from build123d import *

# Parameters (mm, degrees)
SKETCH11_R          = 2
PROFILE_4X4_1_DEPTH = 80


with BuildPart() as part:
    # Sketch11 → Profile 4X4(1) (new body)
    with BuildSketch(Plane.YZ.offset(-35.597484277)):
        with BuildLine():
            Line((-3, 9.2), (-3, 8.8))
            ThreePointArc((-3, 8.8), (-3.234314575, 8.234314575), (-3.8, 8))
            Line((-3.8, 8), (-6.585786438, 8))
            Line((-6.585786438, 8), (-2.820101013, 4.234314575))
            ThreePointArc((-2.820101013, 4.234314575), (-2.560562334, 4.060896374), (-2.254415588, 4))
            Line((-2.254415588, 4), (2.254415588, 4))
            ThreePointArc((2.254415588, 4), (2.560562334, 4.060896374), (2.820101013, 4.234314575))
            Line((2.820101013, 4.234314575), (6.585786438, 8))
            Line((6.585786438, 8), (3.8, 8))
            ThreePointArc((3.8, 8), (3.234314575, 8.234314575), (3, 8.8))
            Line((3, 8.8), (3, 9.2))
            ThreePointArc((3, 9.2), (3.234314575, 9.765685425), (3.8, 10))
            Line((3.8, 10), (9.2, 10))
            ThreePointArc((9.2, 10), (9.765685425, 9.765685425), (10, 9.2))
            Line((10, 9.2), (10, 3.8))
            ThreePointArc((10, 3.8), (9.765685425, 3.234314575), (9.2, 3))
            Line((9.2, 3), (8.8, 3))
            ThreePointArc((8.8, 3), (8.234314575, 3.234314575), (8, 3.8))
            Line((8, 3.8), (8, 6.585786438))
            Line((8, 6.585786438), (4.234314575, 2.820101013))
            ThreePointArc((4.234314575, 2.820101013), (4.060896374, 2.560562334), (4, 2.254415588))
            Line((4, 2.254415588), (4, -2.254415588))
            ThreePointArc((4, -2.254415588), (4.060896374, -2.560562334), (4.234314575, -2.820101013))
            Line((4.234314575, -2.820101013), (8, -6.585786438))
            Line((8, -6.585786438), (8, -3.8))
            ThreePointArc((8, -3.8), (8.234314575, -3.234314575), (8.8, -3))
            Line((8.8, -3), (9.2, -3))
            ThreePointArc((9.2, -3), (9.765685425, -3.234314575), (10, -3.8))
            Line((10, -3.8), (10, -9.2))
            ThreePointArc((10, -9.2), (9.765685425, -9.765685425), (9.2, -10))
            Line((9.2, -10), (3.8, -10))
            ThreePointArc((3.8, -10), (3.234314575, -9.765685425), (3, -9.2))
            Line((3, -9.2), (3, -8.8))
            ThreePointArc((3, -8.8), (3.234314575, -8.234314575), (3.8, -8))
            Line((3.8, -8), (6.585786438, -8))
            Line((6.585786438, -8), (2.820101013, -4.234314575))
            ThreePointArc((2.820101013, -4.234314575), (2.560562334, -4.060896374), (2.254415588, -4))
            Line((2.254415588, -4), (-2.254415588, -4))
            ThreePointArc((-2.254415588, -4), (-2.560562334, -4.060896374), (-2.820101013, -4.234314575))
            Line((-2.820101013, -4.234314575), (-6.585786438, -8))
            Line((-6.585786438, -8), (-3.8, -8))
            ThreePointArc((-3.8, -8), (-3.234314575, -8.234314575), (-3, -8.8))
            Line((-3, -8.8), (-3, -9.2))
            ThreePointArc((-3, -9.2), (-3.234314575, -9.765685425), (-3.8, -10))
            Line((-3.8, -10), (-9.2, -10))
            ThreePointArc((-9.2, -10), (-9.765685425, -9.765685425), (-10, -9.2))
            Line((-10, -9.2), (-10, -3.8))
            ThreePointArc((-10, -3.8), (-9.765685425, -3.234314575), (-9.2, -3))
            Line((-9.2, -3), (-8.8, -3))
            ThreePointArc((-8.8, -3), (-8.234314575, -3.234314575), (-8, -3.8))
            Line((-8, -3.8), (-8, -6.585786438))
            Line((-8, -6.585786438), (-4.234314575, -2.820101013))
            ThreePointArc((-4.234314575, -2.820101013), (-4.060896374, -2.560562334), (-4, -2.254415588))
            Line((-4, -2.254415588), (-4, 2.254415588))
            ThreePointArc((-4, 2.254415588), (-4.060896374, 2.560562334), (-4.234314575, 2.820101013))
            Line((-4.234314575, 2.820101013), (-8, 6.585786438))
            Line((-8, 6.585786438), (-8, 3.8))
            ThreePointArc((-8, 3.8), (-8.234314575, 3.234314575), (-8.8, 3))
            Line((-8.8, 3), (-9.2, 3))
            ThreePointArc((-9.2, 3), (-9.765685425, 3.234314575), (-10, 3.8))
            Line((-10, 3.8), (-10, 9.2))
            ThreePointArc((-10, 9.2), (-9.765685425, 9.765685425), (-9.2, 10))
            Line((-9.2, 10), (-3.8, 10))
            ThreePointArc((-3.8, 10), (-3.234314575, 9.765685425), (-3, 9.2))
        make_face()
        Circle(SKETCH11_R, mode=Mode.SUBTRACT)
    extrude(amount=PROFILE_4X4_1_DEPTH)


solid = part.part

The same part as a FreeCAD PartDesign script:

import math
import FreeCAD as App
import Part
import Sketcher

doc = App.newDocument("Part")
body = doc.addObject("PartDesign::Body", "Body")

sketch1 = body.newObject("Sketcher::SketchObject", "Sketch")
sketch1.AttachmentSupport = (doc.getObject("YZ_Plane"), [""])
sketch1.MapMode = "FlatFace"
sketch1.AttachmentOffset = App.Placement(App.Vector(0, 0, -35.597484), App.Rotation())
sketch1.addGeometry(Part.LineSegment(App.Vector(-3, 8.8, 0), App.Vector(-3, 9.2, 0)), False)
sketch1.addGeometry(Part.ArcOfCircle(Part.Circle(App.Vector(-3.8, 9.2, 0), App.Vector(0, 0, 1), 0.8), math.radians(0), math.radians(90)), False)
sketch1.addGeometry(Part.LineSegment(App.Vector(-3.8, 10, 0), App.Vector(-9.2, 10, 0)), False)
sketch1.addGeometry(Part.ArcOfCircle(Part.Circle(App.Vector(-9.2, 9.2, 0), App.Vector(0, 0, 1), 0.8), math.radians(90), math.radians(180)), False)
sketch1.addGeometry(Part.LineSegment(App.Vector(-10, 9.2, 0), App.Vector(-10, 3.8, 0)), False)
sketch1.addGeometry(Part.ArcOfCircle(Part.Circle(App.Vector(-9.2, 3.8, 0), App.Vector(0, 0, 1), 0.8), math.radians(180), math.radians(270)), False)
sketch1.addGeometry(Part.LineSegment(App.Vector(-9.2, 3, 0), App.Vector(-8.8, 3, 0)), False)
sketch1.addGeometry(Part.ArcOfCircle(Part.Circle(App.Vector(-8.8, 3.8, 0), App.Vector(0, 0, 1), 0.8), math.radians(-90), math.radians(0)), False)
sketch1.addGeometry(Part.LineSegment(App.Vector(-8, 3.8, 0), App.Vector(-8, 6.59, 0)), False)
sketch1.addGeometry(Part.LineSegment(App.Vector(-8, 6.59, 0), App.Vector(-4.23, 2.82, 0)), False)
sketch1.addGeometry(Part.ArcOfCircle(Part.Circle(App.Vector(-4.8, 2.25, 0), App.Vector(0, 0, 1), 0.8), math.radians(0), math.radians(45)), False)
sketch1.addGeometry(Part.LineSegment(App.Vector(-4, 2.25, 0), App.Vector(-4, -2.25, 0)), False)
sketch1.addGeometry(Part.ArcOfCircle(Part.Circle(App.Vector(-4.8, -2.25, 0), App.Vector(0, 0, 1), 0.8), math.radians(-45), math.radians(0)), False)
sketch1.addGeometry(Part.LineSegment(App.Vector(-4.23, -2.82, 0), App.Vector(-8, -6.59, 0)), False)
sketch1.addGeometry(Part.LineSegment(App.Vector(-8, -6.59, 0), App.Vector(-8, -3.8, 0)), False)
sketch1.addGeometry(Part.ArcOfCircle(Part.Circle(App.Vector(-8.8, -3.8, 0), App.Vector(0, 0, 1), 0.8), math.radians(0), math.radians(90)), False)
sketch1.addGeometry(Part.LineSegment(App.Vector(-8.8, -3, 0), App.Vector(-9.2, -3, 0)), False)
sketch1.addGeometry(Part.ArcOfCircle(Part.Circle(App.Vector(-9.2, -3.8, 0), App.Vector(0, 0, 1), 0.8), math.radians(90), math.radians(180)), False)
sketch1.addGeometry(Part.LineSegment(App.Vector(-10, -3.8, 0), App.Vector(-10, -9.2, 0)), False)
sketch1.addGeometry(Part.ArcOfCircle(Part.Circle(App.Vector(-9.2, -9.2, 0), App.Vector(0, 0, 1), 0.8), math.radians(180), math.radians(270)), False)
sketch1.addGeometry(Part.LineSegment(App.Vector(-9.2, -10, 0), App.Vector(-3.8, -10, 0)), False)
sketch1.addGeometry(Part.ArcOfCircle(Part.Circle(App.Vector(-3.8, -9.2, 0), App.Vector(0, 0, 1), 0.8), math.radians(-90), math.radians(0)), False)
sketch1.addGeometry(Part.LineSegment(App.Vector(-3, -9.2, 0), App.Vector(-3, -8.8, 0)), False)
sketch1.addGeometry(Part.ArcOfCircle(Part.Circle(App.Vector(-3.8, -8.8, 0), App.Vector(0, 0, 1), 0.8), math.radians(0), math.radians(90)), False)
sketch1.addGeometry(Part.LineSegment(App.Vector(-3.8, -8, 0), App.Vector(-6.59, -8, 0)), False)
sketch1.addGeometry(Part.LineSegment(App.Vector(-6.59, -8, 0), App.Vector(-2.82, -4.23, 0)), False)
sketch1.addGeometry(Part.ArcOfCircle(Part.Circle(App.Vector(-2.25, -4.8, 0), App.Vector(0, 0, 1), 0.8), math.radians(90), math.radians(135)), False)
sketch1.addGeometry(Part.LineSegment(App.Vector(-2.25, -4, 0), App.Vector(2.25, -4, 0)), False)
sketch1.addGeometry(Part.ArcOfCircle(Part.Circle(App.Vector(2.25, -4.8, 0), App.Vector(0, 0, 1), 0.8), math.radians(45), math.radians(90)), False)
sketch1.addGeometry(Part.LineSegment(App.Vector(2.82, -4.23, 0), App.Vector(6.59, -8, 0)), False)
sketch1.addGeometry(Part.LineSegment(App.Vector(6.59, -8, 0), App.Vector(3.8, -8, 0)), False)
sketch1.addGeometry(Part.ArcOfCircle(Part.Circle(App.Vector(3.8, -8.8, 0), App.Vector(0, 0, 1), 0.8), math.radians(90), math.radians(180)), False)
sketch1.addGeometry(Part.LineSegment(App.Vector(3, -8.8, 0), App.Vector(3, -9.2, 0)), False)
sketch1.addGeometry(Part.ArcOfCircle(Part.Circle(App.Vector(3.8, -9.2, 0), App.Vector(0, 0, 1), 0.8), math.radians(180), math.radians(270)), False)
sketch1.addGeometry(Part.LineSegment(App.Vector(3.8, -10, 0), App.Vector(9.2, -10, 0)), False)
sketch1.addGeometry(Part.ArcOfCircle(Part.Circle(App.Vector(9.2, -9.2, 0), App.Vector(0, 0, 1), 0.8), math.radians(-90), math.radians(0)), False)
sketch1.addGeometry(Part.LineSegment(App.Vector(10, -9.2, 0), App.Vector(10, -3.8, 0)), False)
sketch1.addGeometry(Part.ArcOfCircle(Part.Circle(App.Vector(9.2, -3.8, 0), App.Vector(0, 0, 1), 0.8), math.radians(0), math.radians(90)), False)
sketch1.addGeometry(Part.LineSegment(App.Vector(9.2, -3, 0), App.Vector(8.8, -3, 0)), False)
sketch1.addGeometry(Part.ArcOfCircle(Part.Circle(App.Vector(8.8, -3.8, 0), App.Vector(0, 0, 1), 0.8), math.radians(90), math.radians(180)), False)
sketch1.addGeometry(Part.LineSegment(App.Vector(8, -3.8, 0), App.Vector(8, -6.59, 0)), False)
sketch1.addGeometry(Part.LineSegment(App.Vector(8, -6.59, 0), App.Vector(4.23, -2.82, 0)), False)
sketch1.addGeometry(Part.ArcOfCircle(Part.Circle(App.Vector(4.8, -2.25, 0), App.Vector(0, 0, 1), 0.8), math.radians(180), math.radians(225)), False)
sketch1.addGeometry(Part.LineSegment(App.Vector(4, -2.25, 0), App.Vector(4, 2.25, 0)), False)
sketch1.addGeometry(Part.ArcOfCircle(Part.Circle(App.Vector(4.8, 2.25, 0), App.Vector(0, 0, 1), 0.8), math.radians(135), math.radians(180)), False)
sketch1.addGeometry(Part.LineSegment(App.Vector(4.23, 2.82, 0), App.Vector(8, 6.59, 0)), False)
sketch1.addGeometry(Part.LineSegment(App.Vector(8, 6.59, 0), App.Vector(8, 3.8, 0)), False)
sketch1.addGeometry(Part.ArcOfCircle(Part.Circle(App.Vector(8.8, 3.8, 0), App.Vector(0, 0, 1), 0.8), math.radians(180), math.radians(270)), False)
sketch1.addGeometry(Part.LineSegment(App.Vector(8.8, 3, 0), App.Vector(9.2, 3, 0)), False)
sketch1.addGeometry(Part.ArcOfCircle(Part.Circle(App.Vector(9.2, 3.8, 0), App.Vector(0, 0, 1), 0.8), math.radians(-90), math.radians(0)), False)
sketch1.addGeometry(Part.LineSegment(App.Vector(10, 3.8, 0), App.Vector(10, 9.2, 0)), False)
sketch1.addGeometry(Part.ArcOfCircle(Part.Circle(App.Vector(9.2, 9.2, 0), App.Vector(0, 0, 1), 0.8), math.radians(0), math.radians(90)), False)
sketch1.addGeometry(Part.LineSegment(App.Vector(9.2, 10, 0), App.Vector(3.8, 10, 0)), False)
sketch1.addGeometry(Part.ArcOfCircle(Part.Circle(App.Vector(3.8, 9.2, 0), App.Vector(0, 0, 1), 0.8), math.radians(90), math.radians(180)), False)
sketch1.addGeometry(Part.LineSegment(App.Vector(3, 9.2, 0), App.Vector(3, 8.8, 0)), False)
sketch1.addGeometry(Part.ArcOfCircle(Part.Circle(App.Vector(3.8, 8.8, 0), App.Vector(0, 0, 1), 0.8), math.radians(180), math.radians(270)), False)
sketch1.addGeometry(Part.LineSegment(App.Vector(3.8, 8, 0), App.Vector(6.59, 8, 0)), False)
sketch1.addGeometry(Part.LineSegment(App.Vector(6.59, 8, 0), App.Vector(2.82, 4.23, 0)), False)
sketch1.addGeometry(Part.ArcOfCircle(Part.Circle(App.Vector(2.25, 4.8, 0), App.Vector(0, 0, 1), 0.8), math.radians(-90), math.radians(-45)), False)
sketch1.addGeometry(Part.LineSegment(App.Vector(2.25, 4, 0), App.Vector(-2.25, 4, 0)), False)
sketch1.addGeometry(Part.ArcOfCircle(Part.Circle(App.Vector(-2.25, 4.8, 0), App.Vector(0, 0, 1), 0.8), math.radians(-135), math.radians(-90)), False)
sketch1.addGeometry(Part.LineSegment(App.Vector(-2.82, 4.23, 0), App.Vector(-6.59, 8, 0)), False)
sketch1.addGeometry(Part.LineSegment(App.Vector(-6.59, 8, 0), App.Vector(-3.8, 8, 0)), False)
sketch1.addGeometry(Part.ArcOfCircle(Part.Circle(App.Vector(-3.8, 8.8, 0), App.Vector(0, 0, 1), 0.8), math.radians(-90), math.radians(0)), False)
sketch1.addGeometry(Part.Circle(App.Vector(0, 0, 0), App.Vector(0, 0, 1), 2), False)
sketch1.addConstraint(Sketcher.Constraint("Tangent", 0, 2, 1, 1))
sketch1.addConstraint(Sketcher.Constraint("Tangent", 1, 2, 2, 1))
sketch1.addConstraint(Sketcher.Constraint("Tangent", 2, 2, 3, 1))
sketch1.addConstraint(Sketcher.Constraint("Tangent", 3, 2, 4, 1))
sketch1.addConstraint(Sketcher.Constraint("Tangent", 4, 2, 5, 1))
sketch1.addConstraint(Sketcher.Constraint("Tangent", 5, 2, 6, 1))
sketch1.addConstraint(Sketcher.Constraint("Tangent", 6, 2, 7, 1))
sketch1.addConstraint(Sketcher.Constraint("Tangent", 7, 2, 8, 1))
sketch1.addConstraint(Sketcher.Constraint("Coincident", 8, 2, 9, 1))
sketch1.addConstraint(Sketcher.Constraint("Tangent", 9, 2, 10, 2))
sketch1.addConstraint(Sketcher.Constraint("Tangent", 10, 1, 11, 1))
sketch1.addConstraint(Sketcher.Constraint("Tangent", 11, 2, 12, 2))
sketch1.addConstraint(Sketcher.Constraint("Tangent", 12, 1, 13, 1))
sketch1.addConstraint(Sketcher.Constraint("Coincident", 13, 2, 14, 1))
sketch1.addConstraint(Sketcher.Constraint("Tangent", 14, 2, 15, 1))
sketch1.addConstraint(Sketcher.Constraint("Tangent", 15, 2, 16, 1))
sketch1.addConstraint(Sketcher.Constraint("Tangent", 16, 2, 17, 1))
sketch1.addConstraint(Sketcher.Constraint("Tangent", 17, 2, 18, 1))
sketch1.addConstraint(Sketcher.Constraint("Tangent", 18, 2, 19, 1))
sketch1.addConstraint(Sketcher.Constraint("Tangent", 19, 2, 20, 1))
sketch1.addConstraint(Sketcher.Constraint("Tangent", 20, 2, 21, 1))
sketch1.addConstraint(Sketcher.Constraint("Tangent", 21, 2, 22, 1))
sketch1.addConstraint(Sketcher.Constraint("Tangent", 22, 2, 23, 1))
sketch1.addConstraint(Sketcher.Constraint("Tangent", 23, 2, 24, 1))
sketch1.addConstraint(Sketcher.Constraint("Coincident", 24, 2, 25, 1))
sketch1.addConstraint(Sketcher.Constraint("Tangent", 25, 2, 26, 2))
sketch1.addConstraint(Sketcher.Constraint("Tangent", 26, 1, 27, 1))
sketch1.addConstraint(Sketcher.Constraint("Tangent", 27, 2, 28, 2))
sketch1.addConstraint(Sketcher.Constraint("Tangent", 28, 1, 29, 1))
sketch1.addConstraint(Sketcher.Constraint("Coincident", 29, 2, 30, 1))
sketch1.addConstraint(Sketcher.Constraint("Tangent", 30, 2, 31, 1))
sketch1.addConstraint(Sketcher.Constraint("Tangent", 31, 2, 32, 1))
sketch1.addConstraint(Sketcher.Constraint("Tangent", 32, 2, 33, 1))
sketch1.addConstraint(Sketcher.Constraint("Tangent", 33, 2, 34, 1))
sketch1.addConstraint(Sketcher.Constraint("Tangent", 34, 2, 35, 1))
sketch1.addConstraint(Sketcher.Constraint("Tangent", 35, 2, 36, 1))
sketch1.addConstraint(Sketcher.Constraint("Tangent", 36, 2, 37, 1))
sketch1.addConstraint(Sketcher.Constraint("Tangent", 37, 2, 38, 1))
sketch1.addConstraint(Sketcher.Constraint("Tangent", 38, 2, 39, 1))
sketch1.addConstraint(Sketcher.Constraint("Tangent", 39, 2, 40, 1))
sketch1.addConstraint(Sketcher.Constraint("Coincident", 40, 2, 41, 1))
sketch1.addConstraint(Sketcher.Constraint("Tangent", 41, 2, 42, 2))
sketch1.addConstraint(Sketcher.Constraint("Tangent", 42, 1, 43, 1))
sketch1.addConstraint(Sketcher.Constraint("Tangent", 43, 2, 44, 2))
sketch1.addConstraint(Sketcher.Constraint("Tangent", 44, 1, 45, 1))
sketch1.addConstraint(Sketcher.Constraint("Coincident", 45, 2, 46, 1))
sketch1.addConstraint(Sketcher.Constraint("Tangent", 46, 2, 47, 1))
sketch1.addConstraint(Sketcher.Constraint("Tangent", 47, 2, 48, 1))
sketch1.addConstraint(Sketcher.Constraint("Tangent", 48, 2, 49, 1))
sketch1.addConstraint(Sketcher.Constraint("Tangent", 49, 2, 50, 1))
sketch1.addConstraint(Sketcher.Constraint("Tangent", 50, 2, 51, 1))
sketch1.addConstraint(Sketcher.Constraint("Tangent", 51, 2, 52, 1))
sketch1.addConstraint(Sketcher.Constraint("Tangent", 52, 2, 53, 1))
sketch1.addConstraint(Sketcher.Constraint("Tangent", 53, 2, 54, 1))
sketch1.addConstraint(Sketcher.Constraint("Tangent", 54, 2, 55, 1))
sketch1.addConstraint(Sketcher.Constraint("Tangent", 55, 2, 56, 1))
sketch1.addConstraint(Sketcher.Constraint("Coincident", 56, 2, 57, 1))
sketch1.addConstraint(Sketcher.Constraint("Tangent", 57, 2, 58, 2))
sketch1.addConstraint(Sketcher.Constraint("Tangent", 58, 1, 59, 1))
sketch1.addConstraint(Sketcher.Constraint("Tangent", 59, 2, 60, 2))
sketch1.addConstraint(Sketcher.Constraint("Tangent", 60, 1, 61, 1))
sketch1.addConstraint(Sketcher.Constraint("Coincident", 61, 2, 62, 1))
sketch1.addConstraint(Sketcher.Constraint("Tangent", 62, 2, 63, 1))
sketch1.addConstraint(Sketcher.Constraint("Tangent", 63, 2, 0, 1))
sketch1.addConstraint(Sketcher.Constraint("Vertical", 0))
sketch1.addConstraint(Sketcher.Constraint("Horizontal", 2))
sketch1.addConstraint(Sketcher.Constraint("Vertical", 4))
sketch1.addConstraint(Sketcher.Constraint("Horizontal", 6))
sketch1.addConstraint(Sketcher.Constraint("Vertical", 8))
sketch1.addConstraint(Sketcher.Constraint("Vertical", 11))
sketch1.addConstraint(Sketcher.Constraint("Vertical", 14))
sketch1.addConstraint(Sketcher.Constraint("Horizontal", 16))
sketch1.addConstraint(Sketcher.Constraint("Vertical", 18))
sketch1.addConstraint(Sketcher.Constraint("Horizontal", 20))
sketch1.addConstraint(Sketcher.Constraint("Vertical", 22))
sketch1.addConstraint(Sketcher.Constraint("Horizontal", 24))
sketch1.addConstraint(Sketcher.Constraint("Horizontal", 27))
sketch1.addConstraint(Sketcher.Constraint("Horizontal", 30))
sketch1.addConstraint(Sketcher.Constraint("Vertical", 32))
sketch1.addConstraint(Sketcher.Constraint("Horizontal", 34))
sketch1.addConstraint(Sketcher.Constraint("Vertical", 36))
sketch1.addConstraint(Sketcher.Constraint("Horizontal", 38))
sketch1.addConstraint(Sketcher.Constraint("Vertical", 40))
sketch1.addConstraint(Sketcher.Constraint("Vertical", 43))
sketch1.addConstraint(Sketcher.Constraint("Vertical", 46))
sketch1.addConstraint(Sketcher.Constraint("Horizontal", 48))
sketch1.addConstraint(Sketcher.Constraint("Vertical", 50))
sketch1.addConstraint(Sketcher.Constraint("Horizontal", 52))
sketch1.addConstraint(Sketcher.Constraint("Vertical", 54))
sketch1.addConstraint(Sketcher.Constraint("Horizontal", 56))
sketch1.addConstraint(Sketcher.Constraint("Horizontal", 59))
sketch1.addConstraint(Sketcher.Constraint("Horizontal", 62))
sketch1.addConstraint(Sketcher.Constraint("Coincident", 64, 3, -1, 1))
sketch1.addConstraint(Sketcher.Constraint("Equal", 1, 3))
sketch1.addConstraint(Sketcher.Constraint("Equal", 3, 5))
sketch1.addConstraint(Sketcher.Constraint("Equal", 5, 7))
sketch1.addConstraint(Sketcher.Constraint("Equal", 7, 10))
sketch1.addConstraint(Sketcher.Constraint("Equal", 10, 12))
sketch1.addConstraint(Sketcher.Constraint("Equal", 12, 15))
sketch1.addConstraint(Sketcher.Constraint("Equal", 15, 17))
sketch1.addConstraint(Sketcher.Constraint("Equal", 17, 19))
sketch1.addConstraint(Sketcher.Constraint("Equal", 19, 21))
sketch1.addConstraint(Sketcher.Constraint("Equal", 21, 23))
sketch1.addConstraint(Sketcher.Constraint("Equal", 23, 26))
sketch1.addConstraint(Sketcher.Constraint("Equal", 26, 28))
sketch1.addConstraint(Sketcher.Constraint("Equal", 28, 31))
sketch1.addConstraint(Sketcher.Constraint("Equal", 31, 33))
sketch1.addConstraint(Sketcher.Constraint("Equal", 33, 35))
sketch1.addConstraint(Sketcher.Constraint("Equal", 35, 37))
sketch1.addConstraint(Sketcher.Constraint("Equal", 37, 39))
sketch1.addConstraint(Sketcher.Constraint("Equal", 39, 42))
sketch1.addConstraint(Sketcher.Constraint("Equal", 42, 44))
sketch1.addConstraint(Sketcher.Constraint("Equal", 44, 47))
sketch1.addConstraint(Sketcher.Constraint("Equal", 47, 49))
sketch1.addConstraint(Sketcher.Constraint("Equal", 49, 51))
sketch1.addConstraint(Sketcher.Constraint("Equal", 51, 53))
sketch1.addConstraint(Sketcher.Constraint("Equal", 53, 55))
sketch1.addConstraint(Sketcher.Constraint("Equal", 55, 58))
sketch1.addConstraint(Sketcher.Constraint("Equal", 58, 60))
sketch1.addConstraint(Sketcher.Constraint("Equal", 60, 63))
sketch1.addConstraint(Sketcher.Constraint("Symmetric", 1, 3, 33, 3, -1, 1))
sketch1.addConstraint(Sketcher.Constraint("Symmetric", 5, 3, 37, 3, -1, 1))
sketch1.addConstraint(Sketcher.Constraint("Symmetric", 10, 3, 42, 3, -1, 1))
sketch1.addConstraint(Sketcher.Constraint("Symmetric", 15, 3, 47, 3, -1, 1))
sketch1.addConstraint(Sketcher.Constraint("Symmetric", 19, 3, 51, 3, -1, 1))
sketch1.addConstraint(Sketcher.Constraint("Symmetric", 23, 3, 55, 3, -1, 1))
sketch1.addConstraint(Sketcher.Constraint("Symmetric", 26, 3, 58, 3, -1, 1))
sketch1.addConstraint(Sketcher.Constraint("Symmetric", 8, 2, 40, 2, -1, 1))
sketch1.addConstraint(Sketcher.Constraint("Symmetric", 12, 1, 44, 1, -1, 1))
sketch1.addConstraint(Sketcher.Constraint("Symmetric", 28, 1, 60, 1, -1, 1))
sketch1.addConstraint(Sketcher.Constraint("Symmetric", 23, 3, 31, 3, -2))
sketch1.addConstraint(Sketcher.Constraint("Symmetric", 19, 3, 35, 3, -2))
sketch1.addConstraint(Sketcher.Constraint("Symmetric", 15, 3, 39, 3, -2))
sketch1.addConstraint(Sketcher.Constraint("Symmetric", 25, 2, 28, 1, -2))
sketch1.addConstraint(Sketcher.Constraint("Symmetric", 12, 1, 41, 2, -2))
sketch1.addConstraint(Sketcher.Constraint("Symmetric", 56, 2, 61, 2, -2))
sketch1.addConstraint(Sketcher.Constraint("Perpendicular", 9, 13))
sketch1.addConstraint(Sketcher.Constraint("Parallel", 13, 25))
sketch1.addConstraint(Sketcher.Constraint("Equal", 48, 0))
sketch1.addConstraint(Sketcher.Constraint("Equal", 52, 4))
sketch1.addConstraint(Sketcher.Constraint("Equal", 62, 8))
sketch1.addConstraint(Sketcher.Constraint("Equal", 59, 11))
sketch1.addConstraint(Sketcher.Constraint("Equal", 13, 25))
sketch1.addConstraint(Sketcher.Constraint("Diameter", 64, 4.0))
sketch1.addConstraint(Sketcher.Constraint("Radius", 1, 0.8))
sketch1.addConstraint(Sketcher.Constraint("DistanceX", 2, 2, 2, 1, 5.4))
sketch1.addConstraint(Sketcher.Constraint("DistanceX", 6, 1, 6, 2, 0.4))
sketch1.addConstraint(Sketcher.Constraint("DistanceX", 0, 2, -1, 1, 3.0))
sketch1.addConstraint(Sketcher.Constraint("DistanceX", 10, 1, -1, 1, 4.0))
sketch1.addConstraint(Sketcher.Constraint("DistanceX", 27, 1, 27, 2, 4.508831))
pad1 = body.newObject("PartDesign::Pad", "Pad")
pad1.Profile = sketch1
pad1.Length = 80

doc.recompute()
